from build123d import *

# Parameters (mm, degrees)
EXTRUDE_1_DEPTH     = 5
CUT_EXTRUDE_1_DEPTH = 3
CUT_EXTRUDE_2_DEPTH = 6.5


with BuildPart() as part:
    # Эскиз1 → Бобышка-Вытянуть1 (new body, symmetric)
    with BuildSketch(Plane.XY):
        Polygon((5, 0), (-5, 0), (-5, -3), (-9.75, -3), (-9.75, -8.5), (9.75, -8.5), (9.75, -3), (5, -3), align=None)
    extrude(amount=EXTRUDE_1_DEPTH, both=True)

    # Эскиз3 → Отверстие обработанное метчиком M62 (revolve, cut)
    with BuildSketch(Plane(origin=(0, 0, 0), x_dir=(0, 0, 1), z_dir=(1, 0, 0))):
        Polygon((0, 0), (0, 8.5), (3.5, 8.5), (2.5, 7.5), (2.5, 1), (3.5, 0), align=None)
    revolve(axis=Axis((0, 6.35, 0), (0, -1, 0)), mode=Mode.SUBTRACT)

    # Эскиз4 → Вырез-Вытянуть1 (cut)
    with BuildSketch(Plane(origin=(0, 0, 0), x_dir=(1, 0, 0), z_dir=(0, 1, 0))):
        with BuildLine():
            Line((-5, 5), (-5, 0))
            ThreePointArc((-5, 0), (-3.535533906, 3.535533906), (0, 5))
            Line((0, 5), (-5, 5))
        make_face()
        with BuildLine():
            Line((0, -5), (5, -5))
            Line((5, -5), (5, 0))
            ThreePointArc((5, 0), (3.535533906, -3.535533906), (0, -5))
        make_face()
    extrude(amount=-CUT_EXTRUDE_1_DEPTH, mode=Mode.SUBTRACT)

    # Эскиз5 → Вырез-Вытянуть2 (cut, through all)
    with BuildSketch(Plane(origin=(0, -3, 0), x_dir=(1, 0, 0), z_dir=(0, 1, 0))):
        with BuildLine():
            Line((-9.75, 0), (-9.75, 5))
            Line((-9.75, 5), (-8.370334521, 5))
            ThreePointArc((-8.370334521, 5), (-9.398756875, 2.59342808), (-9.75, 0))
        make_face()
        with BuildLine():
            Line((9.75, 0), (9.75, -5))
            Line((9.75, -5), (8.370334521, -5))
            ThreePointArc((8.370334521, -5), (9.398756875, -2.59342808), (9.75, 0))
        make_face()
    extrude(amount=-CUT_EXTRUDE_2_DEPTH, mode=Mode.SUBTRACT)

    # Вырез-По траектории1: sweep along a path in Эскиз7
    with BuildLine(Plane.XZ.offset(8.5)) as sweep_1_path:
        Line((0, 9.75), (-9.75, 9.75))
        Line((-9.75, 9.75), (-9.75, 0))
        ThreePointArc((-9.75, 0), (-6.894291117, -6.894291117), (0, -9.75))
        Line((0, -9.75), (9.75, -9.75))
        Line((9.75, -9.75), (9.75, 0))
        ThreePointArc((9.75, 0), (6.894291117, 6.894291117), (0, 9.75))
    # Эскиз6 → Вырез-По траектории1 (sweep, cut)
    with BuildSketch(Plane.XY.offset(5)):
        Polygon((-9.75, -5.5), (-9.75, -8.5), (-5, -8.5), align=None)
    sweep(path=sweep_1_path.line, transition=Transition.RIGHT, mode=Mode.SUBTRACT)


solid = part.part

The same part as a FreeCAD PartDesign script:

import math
import FreeCAD as App
import Part
import Sketcher
from FreeCAD import Vector
Q = App.Units.Quantity


def add_polygon(sketch, points):
    """Adds a closed chain of lines whose ends are joined by coincident constraints."""
    first, n = sketch.GeometryCount, len(points)
    for a, b in zip(points, points[1:] + points[:1]):
        sketch.addGeometry(Part.LineSegment(App.Vector(*a, 0), App.Vector(*b, 0)), False)
    for i in range(n):
        sketch.addConstraint(Sketcher.Constraint("Coincident", first + i, 2, first + (i + 1) % n, 1))

doc = App.newDocument("Part")
body = doc.addObject("PartDesign::Body", "Body")

# Sketch on XY plane
sketch1 = body.newObject("Sketcher::SketchObject", "Sketch")
sketch1.AttachmentSupport = (doc.getObject("XY_Plane"), [""])
sketch1.MapMode = "FlatFace"
add_polygon(sketch1, [(5, 0), (-5, 0), (-5, -3), (-9.75, -3), (-9.75, -8.5), (9.75, -8.5), (9.75, -3), (5, -3)])  # lines 0-7
sketch1.addConstraint(Sketcher.Constraint("Horizontal", 0))
sketch1.addConstraint(Sketcher.Constraint("Vertical", 1))
sketch1.addConstraint(Sketcher.Constraint("Horizontal", 2))
sketch1.addConstraint(Sketcher.Constraint("Vertical", 3))
sketch1.addConstraint(Sketcher.Constraint("Horizontal", 4))
sketch1.addConstraint(Sketcher.Constraint("Vertical", 5))
sketch1.addConstraint(Sketcher.Constraint("Horizontal", 6))
sketch1.addConstraint(Sketcher.Constraint("Vertical", 7))
sketch1.addConstraint(Sketcher.Constraint("Symmetric", 0, 2, 7, 2, -1, 1))
sketch1.addConstraint(Sketcher.Constraint("Symmetric", 2, 2, 5, 2, -2))
sketch1.addConstraint(Sketcher.Constraint("DistanceX", 0, 2, 0, 1, Q("10 mm")))
sketch1.addConstraint(Sketcher.Constraint("DistanceY", 1, 2, 1, 1, Q("3 mm")))
sketch1.addConstraint(Sketcher.Constraint("DistanceX", 4, 1, 4, 2, Q("19.5 mm")))
sketch1.addConstraint(Sketcher.Constraint("DistanceY", 3, 2, 3, 1, Q("5.5 mm")))
pad1 = body.newObject("PartDesign::Pad", "Pad")
pad1.Profile = sketch1
pad1.Length = 10
pad1.Midplane = True

# Sketch on YZ plane
sketch2 = body.newObject("Sketcher::SketchObject", "Sketch001")
sketch2.AttachmentSupport = (doc.getObject("YZ_Plane"), [""])
sketch2.MapMode = "FlatFace"
add_polygon(sketch2, [(-8.5, 0), (0, 0), (0, 3.5), (-1, 2.5), (-7.5, 2.5), (-8.5, 3.5)])  # lines 0-5
sketch2.addConstraint(Sketcher.Constraint("Horizontal", 0))
sketch2.addConstraint(Sketcher.Constraint("Vertical", 1))
sketch2.addConstraint(Sketcher.Constraint("Horizontal", 3))
sketch2.addConstraint(Sketcher.Constraint("Vertical", 5))
sketch2.addConstraint(Sketcher.Constraint("Coincident", 0, 2, -1, 1))
sketch2.addConstraint(Sketcher.Constraint("Perpendicular", 2, 4))
sketch2.addConstraint(Sketcher.Constraint("Horizontal", 1, 2, 4, 2))
sketch2.addConstraint(Sketcher.Constraint("Equal", 2, 4))
sketch2.addConstraint(Sketcher.Constraint("DistanceX", 0, 1, 0, 2, Q("8.5 mm")))
sketch2.addConstraint(Sketcher.Constraint("DistanceX", 3, 2, 3, 1, Q("6.5 mm")))
sketch2.addConstraint(Sketcher.Constraint("DistanceY", 1, 1, 1, 2, Q("3.5 mm")))
groove = body.newObject("PartDesign::Groove", "Groove")
groove.Profile = sketch2
groove.ReferenceAxis = (sketch2, ["H_Axis"])
groove.Angle = 360

# Sketch on XZ plane
sketch3 = body.newObject("Sketcher::SketchObject", "Sketch002")
sketch3.AttachmentSupport = (doc.getObject("XZ_Plane"), [""])
sketch3.MapMode = "FlatFace"
sketch3.addGeometry(Part.LineSegment(Vector(-5, -5, 0), Vector(-5, 0, 0)), False)
sketch3.addGeometry(Part.ArcOfCircle(Part.Circle(Vector(0, 0, 0), Vector(0, 0, 1), 5), math.radians(180), math.radians(270)), False)
sketch3.addGeometry(Part.LineSegment(Vector(0, -5, 0), Vector(-5, -5, 0)), False)
sketch3.addGeometry(Part.LineSegment(Vector(0, 5, 0), Vector(5, 5, 0)), False)
sketch3.addGeometry(Part.LineSegment(Vector(5, 5, 0), Vector(5, 0, 0)), False)
sketch3.addGeometry(Part.ArcOfCircle(Part.Circle(Vector(0, 0, 0), Vector(0, 0, 1), 5), math.radians(0), math.radians(90)), False)
sketch3.addConstraint(Sketcher.Constraint("Tangent", 0, 2, 1, 1))
sketch3.addConstraint(Sketcher.Constraint("Tangent", 1, 2, 2, 1))
sketch3.addConstraint(Sketcher.Constraint("Coincident", 2, 2, 0, 1))
sketch3.addConstraint(Sketcher.Constraint("Coincident", 3, 2, 4, 1))
sketch3.addConstraint(Sketcher.Constraint("Tangent", 4, 2, 5, 1))
sketch3.addConstraint(Sketcher.Constraint("Tangent", 5, 2, 3, 1))
sketch3.addConstraint(Sketcher.Constraint("Vertical", 0))
sketch3.addConstraint(Sketcher.Constraint("Horizontal", 2))
sketch3.addConstraint(Sketcher.Constraint("Horizontal", 3))
sketch3.addConstraint(Sketcher.Constraint("Vertical", 4))
sketch3.addConstraint(Sketcher.Constraint("Coincident", 1, 3, -1, 1))
sketch3.addConstraint(Sketcher.Constraint("Coincident", 5, 3, -1, 1))
sketch3.addConstraint(Sketcher.Constraint("Equal", 1, 5))
sketch3.addConstraint(Sketcher.Constraint("Radius", 1, Q("5 mm")))
pocket1 = body.newObject("PartDesign::Pocket", "Pocket")
pocket1.Profile = sketch3
pocket1.Length = 3
pocket1.Reversed = True

# Sketch on XZ plane
sketch4 = body.newObject("Sketcher::SketchObject", "Sketch003")
sketch4.AttachmentSupport = (doc.getObject("XZ_Plane"), [""])
sketch4.MapMode = "FlatFace"
sketch4.AttachmentOffset = App.Placement(Vector(0, 0, 3), App.Rotation())
sketch4.addGeometry(Part.LineSegment(Vector(-9.75, -5, 0), Vector(-9.75, 0, 0)), False)
sketch4.addGeometry(Part.ArcOfCircle(Part.Circle(Vector(0, 0, 0), Vector(0, 0, 1), 9.75), math.radians(180), math.radians(210.851886)), False)
sketch4.addGeometry(Part.LineSegment(Vector(-8.370335, -5, 0), Vector(-9.75, -5, 0)), False)
sketch4.addGeometry(Part.LineSegment(Vector(9.75, 5, 0), Vector(9.75, 0, 0)), False)
sketch4.addGeometry(Part.ArcOfCircle(Part.Circle(Vector(0, 0, 0), Vector(0, 0, 1), 9.75), math.radians(0), math.radians(30.851886)), False)
sketch4.addGeometry(Part.LineSegment(Vector(8.370335, 5, 0), Vector(9.75, 5, 0)), False)
sketch4.addConstraint(Sketcher.Constraint("Tangent", 0, 2, 1, 1))
sketch4.addConstraint(Sketcher.Constraint("Coincident", 1, 2, 2, 1))
sketch4.addConstraint(Sketcher.Constraint("Coincident", 2, 2, 0, 1))
sketch4.addConstraint(Sketcher.Constraint("Tangent", 3, 2, 4, 1))
sketch4.addConstraint(Sketcher.Constraint("Coincident", 4, 2, 5, 1))
sketch4.addConstraint(Sketcher.Constraint("Coincident", 5, 2, 3, 1))
sketch4.addConstraint(Sketcher.Constraint("Vertical", 0))
sketch4.addConstraint(Sketcher.Constraint("Horizontal", 2))
sketch4.addConstraint(Sketcher.Constraint("Vertical", 3))
sketch4.addConstraint(Sketcher.Constraint("Horizontal", 5))
sketch4.addConstraint(Sketcher.Constraint("Coincident", 1, 3, -1, 1))
sketch4.addConstraint(Sketcher.Constraint("Coincident", 4, 3, -1, 1))
sketch4.addConstraint(Sketcher.Constraint("Equal", 1, 4))
sketch4.addConstraint(Sketcher.Constraint("Equal", 2, 5))
sketch4.addConstraint(Sketcher.Constraint("DistanceY", 0, 1, 0, 2, Q("5 mm")))
sketch4.addConstraint(Sketcher.Constraint("Radius", 1, Q("9.75 mm")))
pocket2 = body.newObject("PartDesign::Pocket", "Pocket001")
pocket2.Profile = sketch4
pocket2.Type = "ThroughAll"
pocket2.Reversed = True

# Sketch on XY plane
sketch5 = body.newObject("Sketcher::SketchObject", "Sketch004")
sketch5.AttachmentSupport = (doc.getObject("XY_Plane"), [""])
sketch5.MapMode = "FlatFace"
sketch5.AttachmentOffset = App.Placement(Vector(0, 0, 5), App.Rotation())
add_polygon(sketch5, [(-9.75, -5.5), (-9.75, -8.5), (-5, -8.5)])  # lines 0-2
sketch5.addConstraint(Sketcher.Constraint("Vertical", 0))
sketch5.addConstraint(Sketcher.Constraint("Horizontal", 1))
sketch5.addConstraint(Sketcher.Constraint("DistanceY", 0, 2, 0, 1, Q("3 mm")))
sketch5.addConstraint(Sketcher.Constraint("DistanceX", 1, 2, -1, 1, Q("5 mm")))
sketch5.addConstraint(Sketcher.Constraint("DistanceX", 1, 1, 1, 2, Q("4.75 mm")))
sketch5.addConstraint(Sketcher.Constraint("DistanceY", 0, 2, -1, 1, Q("8.5 mm")))

# Sketch on XZ plane
sketch6 = body.newObject("Sketcher::SketchObject", "Sketch005")
sketch6.AttachmentSupport = (doc.getObject("XZ_Plane"), [""])
sketch6.MapMode = "FlatFace"
sketch6.AttachmentOffset = App.Placement(Vector(0, 0, 8.5), App.Rotation())
sketch6.addGeometry(Part.LineSegment(Vector(0, 9.75, 0), Vector(-9.75, 9.75, 0)), False)
sketch6.addGeometry(Part.LineSegment(Vector(-9.75, 9.75, 0), Vector(-9.75, 0, 0)), False)
sketch6.addGeometry(Part.ArcOfCircle(Part.Circle(Vector(0, 0, 0), Vector(0, 0, 1), 9.75), math.radians(180), math.radians(270)), False)
sketch6.addGeometry(Part.LineSegment(Vector(0, -9.75, 0), Vector(9.75, -9.75, 0)), False)
sketch6.addGeometry(Part.LineSegment(Vector(9.75, -9.75, 0), Vector(9.75, 0, 0)), False)
sketch6.addGeometry(Part.ArcOfCircle(Part.Circle(Vector(0, 0, 0), Vector(0, 0, 1), 9.75), math.radians(0), math.radians(90)), False)
sketch6.addConstraint(Sketcher.Constraint("Coincident", 0, 2, 1, 1))
sketch6.addConstraint(Sketcher.Constraint("Tangent", 1, 2, 2, 1))
sketch6.addConstraint(Sketcher.Constraint("Tangent", 2, 2, 3, 1))
sketch6.addConstraint(Sketcher.Constraint("Coincident", 3, 2, 4, 1))
sketch6.addConstraint(Sketcher.Constraint("Tangent", 4, 2, 5, 1))
sketch6.addConstraint(Sketcher.Constraint("Tangent", 5, 2, 0, 1))
sketch6.addConstraint(Sketcher.Constraint("Horizontal", 0))
sketch6.addConstraint(Sketcher.Constraint("Vertical", 1))
sketch6.addConstraint(Sketcher.Constraint("Horizontal", 3))
sketch6.addConstraint(Sketcher.Constraint("Vertical", 4))
sketch6.addConstraint(Sketcher.Constraint("Coincident", 2, 3, -1, 1))
sketch6.addConstraint(Sketcher.Constraint("Coincident", 5, 3, -1, 1))
sketch6.addConstraint(Sketcher.Constraint("Equal", 2, 5))
sketch6.addConstraint(Sketcher.Constraint("Radius", 2, Q("9.75 mm")))
doc.recompute()

subtractivepipe = body.newObject("PartDesign::SubtractivePipe", "SubtractivePipe")
subtractivepipe.Profile = sketch5
subtractivepipe.Spine = (sketch6, ["Edge1", "Edge2", "Edge3", "Edge4", "Edge5", "Edge6"])
subtractivepipe.Transition = "Right corner"

doc.recompute()
